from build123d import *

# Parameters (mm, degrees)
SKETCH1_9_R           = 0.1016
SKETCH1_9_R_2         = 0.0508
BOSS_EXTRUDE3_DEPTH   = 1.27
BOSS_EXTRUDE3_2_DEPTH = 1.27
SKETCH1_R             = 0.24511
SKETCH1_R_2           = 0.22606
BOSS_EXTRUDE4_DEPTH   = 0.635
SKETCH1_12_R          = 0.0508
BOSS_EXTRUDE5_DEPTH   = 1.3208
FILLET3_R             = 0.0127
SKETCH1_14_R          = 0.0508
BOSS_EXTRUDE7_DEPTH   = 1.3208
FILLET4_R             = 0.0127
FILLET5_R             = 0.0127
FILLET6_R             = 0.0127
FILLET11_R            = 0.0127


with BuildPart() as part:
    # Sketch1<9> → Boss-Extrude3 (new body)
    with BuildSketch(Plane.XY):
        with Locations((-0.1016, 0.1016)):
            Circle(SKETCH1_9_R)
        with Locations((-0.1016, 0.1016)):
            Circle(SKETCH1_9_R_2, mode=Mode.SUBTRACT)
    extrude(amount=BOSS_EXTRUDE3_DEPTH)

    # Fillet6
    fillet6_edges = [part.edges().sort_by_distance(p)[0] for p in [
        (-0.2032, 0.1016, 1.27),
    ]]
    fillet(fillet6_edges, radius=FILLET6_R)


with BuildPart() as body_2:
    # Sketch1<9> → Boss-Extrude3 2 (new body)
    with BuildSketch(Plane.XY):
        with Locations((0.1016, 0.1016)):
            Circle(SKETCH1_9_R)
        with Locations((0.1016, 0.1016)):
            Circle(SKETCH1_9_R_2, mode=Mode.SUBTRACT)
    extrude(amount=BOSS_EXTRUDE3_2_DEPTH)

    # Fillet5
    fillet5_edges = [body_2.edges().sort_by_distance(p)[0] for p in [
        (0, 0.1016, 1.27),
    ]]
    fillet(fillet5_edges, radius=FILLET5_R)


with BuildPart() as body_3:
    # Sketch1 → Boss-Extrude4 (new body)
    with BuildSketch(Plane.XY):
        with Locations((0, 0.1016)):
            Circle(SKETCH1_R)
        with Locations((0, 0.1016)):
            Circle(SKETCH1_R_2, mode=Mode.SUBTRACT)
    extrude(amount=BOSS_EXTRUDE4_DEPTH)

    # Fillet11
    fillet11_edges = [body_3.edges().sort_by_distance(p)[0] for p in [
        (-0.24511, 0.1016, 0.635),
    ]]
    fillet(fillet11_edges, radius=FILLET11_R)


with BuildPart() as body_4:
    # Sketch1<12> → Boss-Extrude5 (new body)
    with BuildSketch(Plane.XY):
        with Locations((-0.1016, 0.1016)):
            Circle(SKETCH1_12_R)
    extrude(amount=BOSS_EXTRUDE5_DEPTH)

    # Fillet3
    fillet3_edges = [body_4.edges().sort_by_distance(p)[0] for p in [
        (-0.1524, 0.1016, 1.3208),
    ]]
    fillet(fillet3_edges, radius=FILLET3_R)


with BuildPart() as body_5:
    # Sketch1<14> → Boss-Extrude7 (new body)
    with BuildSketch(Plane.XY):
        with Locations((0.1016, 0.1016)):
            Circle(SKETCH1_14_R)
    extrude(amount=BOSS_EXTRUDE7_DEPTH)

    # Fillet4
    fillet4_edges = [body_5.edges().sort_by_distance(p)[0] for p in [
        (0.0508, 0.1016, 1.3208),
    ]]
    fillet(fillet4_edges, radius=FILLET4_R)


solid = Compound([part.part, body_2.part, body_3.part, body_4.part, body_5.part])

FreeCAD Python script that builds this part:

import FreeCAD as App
import Part
import Sketcher
Q = App.Units.Quantity


def edges_at(feature, points):
    """Names of the edges that pass closest to the given points."""
    edges = feature.Shape.Edges
    near = lambda p: min(range(len(edges)), key=lambda i: edges[i].distToShape(Part.Vertex(*p))[0])
    return sorted({f"Edge{near(p) + 1}" for p in points})

doc = App.newDocument("Part")
body = doc.addObject("PartDesign::Body", "Body")

sketch1 = body.newObject("Sketcher::SketchObject", "Sketch")
sketch1.AttachmentSupport = (doc.getObject("XY_Plane"), [""])
sketch1.MapMode = "FlatFace"
sketch1.addGeometry(Part.Circle(App.Vector(-0.1, 0.1, 0), App.Vector(0, 0, 1), 0.1), False)
sketch1.addGeometry(Part.Circle(App.Vector(-0.1, 0.1, 0), App.Vector(0, 0, 1), 0.05), False)
sketch1.addConstraint(Sketcher.Constraint("Coincident", 1, 3, 0, 3))
sketch1.addConstraint(Sketcher.Constraint("Diameter", 0, Q("0.008 in")))
sketch1.addConstraint(Sketcher.Constraint("Diameter", 1, Q("0.004 in")))
sketch1.addConstraint(Sketcher.Constraint("DistanceX", 0, 3, -1, 1, Q("0.004 in")))
sketch1.addConstraint(Sketcher.Constraint("DistanceY", -1, 1, 0, 3, Q("0.004 in")))
pad1 = body.newObject("PartDesign::Pad", "Pad")
pad1.Profile = sketch1
pad1.Length = Q("0.05 in")
doc.recompute()

fillet = body.newObject("PartDesign::Fillet", "Fillet")
fillet.Base = (pad1, edges_at(pad1, [(-0.203, 0.102, 1.27)]))
fillet.Radius = Q("0.0005 in")
body2 = doc.addObject("PartDesign::Body", "Body001")

sketch2 = body2.newObject("Sketcher::SketchObject", "Sketch001")
sketch2.AttachmentSupport = (doc.getObject("XY_Plane001"), [""])
sketch2.MapMode = "FlatFace"
sketch2.addGeometry(Part.Circle(App.Vector(0.1, 0.1, 0), App.Vector(0, 0, 1), 0.1), False)
sketch2.addGeometry(Part.Circle(App.Vector(0.1, 0.1, 0), App.Vector(0, 0, 1), 0.05), False)
sketch2.addConstraint(Sketcher.Constraint("Coincident", 1, 3, 0, 3))
sketch2.addConstraint(Sketcher.Constraint("Diameter", 0, Q("0.008 in")))
sketch2.addConstraint(Sketcher.Constraint("Diameter", 1, Q("0.004 in")))
sketch2.addConstraint(Sketcher.Constraint("DistanceX", -1, 1, 0, 3, Q("0.004 in")))
sketch2.addConstraint(Sketcher.Constraint("DistanceY", -1, 1, 0, 3, Q("0.004 in")))
pad2 = body2.newObject("PartDesign::Pad", "Pad001")
pad2.Profile = sketch2
pad2.Length = Q("0.05 in")
doc.recompute()

fillet2 = body2.newObject("PartDesign::Fillet", "Fillet001")
fillet2.Base = (pad2, edges_at(pad2, [(0, 0.102, 1.27)]))
fillet2.Radius = Q("0.0005 in")
body3 = doc.addObject("PartDesign::Body", "Body002")

sketch3 = body3.newObject("Sketcher::SketchObject", "Sketch002")
sketch3.AttachmentSupport = (doc.getObject("XY_Plane002"), [""])
sketch3.MapMode = "FlatFace"
sketch3.addGeometry(Part.Circle(App.Vector(0, 0.1, 0), App.Vector(0, 0, 1), 0.25), False)
sketch3.addGeometry(Part.Circle(App.Vector(0, 0.1, 0), App.Vector(0, 0, 1), 0.23), False)
sketch3.addConstraint(Sketcher.Constraint("Coincident", 1, 3, 0, 3))
sketch3.addConstraint(Sketcher.Constraint("PointOnObject", 0, 3, -2))
sketch3.addConstraint(Sketcher.Constraint("Diameter", 0, Q("0.0193 in")))
sketch3.addConstraint(Sketcher.Constraint("Diameter", 1, Q("0.0178 in")))
sketch3.addConstraint(Sketcher.Constraint("DistanceY", -1, 1, 0, 3, Q("0.004 in")))
pad3 = body3.newObject("PartDesign::Pad", "Pad002")
pad3.Profile = sketch3
pad3.Length = Q("0.025 in")
doc.recompute()

fillet3 = body3.newObject("PartDesign::Fillet", "Fillet002")
fillet3.Base = (pad3, edges_at(pad3, [(-0.245, 0.102, 0.635)]))
fillet3.Radius = Q("0.0005 in")
body4 = doc.addObject("PartDesign::Body", "Body003")

sketch4 = body4.newObject("Sketcher::SketchObject", "Sketch003")
sketch4.AttachmentSupport = (doc.getObject("XY_Plane003"), [""])
sketch4.MapMode = "FlatFace"
sketch4.addGeometry(Part.Circle(App.Vector(-0.1, 0.1, 0), App.Vector(0, 0, 1), 0.05), False)
sketch4.addConstraint(Sketcher.Constraint("Diameter", 0, Q("0.004 in")))
sketch4.addConstraint(Sketcher.Constraint("DistanceX", 0, 3, -1, 1, Q("0.004 in")))
sketch4.addConstraint(Sketcher.Constraint("DistanceY", -1, 1, 0, 3, Q("0.004 in")))
pad4 = body4.newObject("PartDesign::Pad", "Pad003")
pad4.Profile = sketch4
pad4.Length = Q("0.052 in")
doc.recompute()

fillet4 = body4.newObject("PartDesign::Fillet", "Fillet003")
fillet4.Base = (pad4, edges_at(pad4, [(-0.152, 0.102, 1.321)]))
fillet4.Radius = Q("0.0005 in")
body5 = doc.addObject("PartDesign::Body", "Body004")

sketch5 = body5.newObject("Sketcher::SketchObject", "Sketch004")
sketch5.AttachmentSupport = (doc.getObject("XY_Plane004"), [""])
sketch5.MapMode = "FlatFace"
sketch5.addGeometry(Part.Circle(App.Vector(0.1, 0.1, 0), App.Vector(0, 0, 1), 0.05), False)
sketch5.addConstraint(Sketcher.Constraint("Diameter", 0, Q("0.004 in")))
sketch5.addConstraint(Sketcher.Constraint("DistanceX", -1, 1, 0, 3, Q("0.004 in")))
sketch5.addConstraint(Sketcher.Constraint("DistanceY", -1, 1, 0, 3, Q("0.004 in")))
pad5 = body5.newObject("PartDesign::Pad", "Pad004")
pad5.Profile = sketch5
pad5.Length = Q("0.052 in")
doc.recompute()

fillet5 = body5.newObject("PartDesign::Fillet", "Fillet004")
fillet5.Base = (pad5, edges_at(pad5, [(0.051, 0.102, 1.321)]))
fillet5.Radius = Q("0.0005 in")

doc.recompute()
